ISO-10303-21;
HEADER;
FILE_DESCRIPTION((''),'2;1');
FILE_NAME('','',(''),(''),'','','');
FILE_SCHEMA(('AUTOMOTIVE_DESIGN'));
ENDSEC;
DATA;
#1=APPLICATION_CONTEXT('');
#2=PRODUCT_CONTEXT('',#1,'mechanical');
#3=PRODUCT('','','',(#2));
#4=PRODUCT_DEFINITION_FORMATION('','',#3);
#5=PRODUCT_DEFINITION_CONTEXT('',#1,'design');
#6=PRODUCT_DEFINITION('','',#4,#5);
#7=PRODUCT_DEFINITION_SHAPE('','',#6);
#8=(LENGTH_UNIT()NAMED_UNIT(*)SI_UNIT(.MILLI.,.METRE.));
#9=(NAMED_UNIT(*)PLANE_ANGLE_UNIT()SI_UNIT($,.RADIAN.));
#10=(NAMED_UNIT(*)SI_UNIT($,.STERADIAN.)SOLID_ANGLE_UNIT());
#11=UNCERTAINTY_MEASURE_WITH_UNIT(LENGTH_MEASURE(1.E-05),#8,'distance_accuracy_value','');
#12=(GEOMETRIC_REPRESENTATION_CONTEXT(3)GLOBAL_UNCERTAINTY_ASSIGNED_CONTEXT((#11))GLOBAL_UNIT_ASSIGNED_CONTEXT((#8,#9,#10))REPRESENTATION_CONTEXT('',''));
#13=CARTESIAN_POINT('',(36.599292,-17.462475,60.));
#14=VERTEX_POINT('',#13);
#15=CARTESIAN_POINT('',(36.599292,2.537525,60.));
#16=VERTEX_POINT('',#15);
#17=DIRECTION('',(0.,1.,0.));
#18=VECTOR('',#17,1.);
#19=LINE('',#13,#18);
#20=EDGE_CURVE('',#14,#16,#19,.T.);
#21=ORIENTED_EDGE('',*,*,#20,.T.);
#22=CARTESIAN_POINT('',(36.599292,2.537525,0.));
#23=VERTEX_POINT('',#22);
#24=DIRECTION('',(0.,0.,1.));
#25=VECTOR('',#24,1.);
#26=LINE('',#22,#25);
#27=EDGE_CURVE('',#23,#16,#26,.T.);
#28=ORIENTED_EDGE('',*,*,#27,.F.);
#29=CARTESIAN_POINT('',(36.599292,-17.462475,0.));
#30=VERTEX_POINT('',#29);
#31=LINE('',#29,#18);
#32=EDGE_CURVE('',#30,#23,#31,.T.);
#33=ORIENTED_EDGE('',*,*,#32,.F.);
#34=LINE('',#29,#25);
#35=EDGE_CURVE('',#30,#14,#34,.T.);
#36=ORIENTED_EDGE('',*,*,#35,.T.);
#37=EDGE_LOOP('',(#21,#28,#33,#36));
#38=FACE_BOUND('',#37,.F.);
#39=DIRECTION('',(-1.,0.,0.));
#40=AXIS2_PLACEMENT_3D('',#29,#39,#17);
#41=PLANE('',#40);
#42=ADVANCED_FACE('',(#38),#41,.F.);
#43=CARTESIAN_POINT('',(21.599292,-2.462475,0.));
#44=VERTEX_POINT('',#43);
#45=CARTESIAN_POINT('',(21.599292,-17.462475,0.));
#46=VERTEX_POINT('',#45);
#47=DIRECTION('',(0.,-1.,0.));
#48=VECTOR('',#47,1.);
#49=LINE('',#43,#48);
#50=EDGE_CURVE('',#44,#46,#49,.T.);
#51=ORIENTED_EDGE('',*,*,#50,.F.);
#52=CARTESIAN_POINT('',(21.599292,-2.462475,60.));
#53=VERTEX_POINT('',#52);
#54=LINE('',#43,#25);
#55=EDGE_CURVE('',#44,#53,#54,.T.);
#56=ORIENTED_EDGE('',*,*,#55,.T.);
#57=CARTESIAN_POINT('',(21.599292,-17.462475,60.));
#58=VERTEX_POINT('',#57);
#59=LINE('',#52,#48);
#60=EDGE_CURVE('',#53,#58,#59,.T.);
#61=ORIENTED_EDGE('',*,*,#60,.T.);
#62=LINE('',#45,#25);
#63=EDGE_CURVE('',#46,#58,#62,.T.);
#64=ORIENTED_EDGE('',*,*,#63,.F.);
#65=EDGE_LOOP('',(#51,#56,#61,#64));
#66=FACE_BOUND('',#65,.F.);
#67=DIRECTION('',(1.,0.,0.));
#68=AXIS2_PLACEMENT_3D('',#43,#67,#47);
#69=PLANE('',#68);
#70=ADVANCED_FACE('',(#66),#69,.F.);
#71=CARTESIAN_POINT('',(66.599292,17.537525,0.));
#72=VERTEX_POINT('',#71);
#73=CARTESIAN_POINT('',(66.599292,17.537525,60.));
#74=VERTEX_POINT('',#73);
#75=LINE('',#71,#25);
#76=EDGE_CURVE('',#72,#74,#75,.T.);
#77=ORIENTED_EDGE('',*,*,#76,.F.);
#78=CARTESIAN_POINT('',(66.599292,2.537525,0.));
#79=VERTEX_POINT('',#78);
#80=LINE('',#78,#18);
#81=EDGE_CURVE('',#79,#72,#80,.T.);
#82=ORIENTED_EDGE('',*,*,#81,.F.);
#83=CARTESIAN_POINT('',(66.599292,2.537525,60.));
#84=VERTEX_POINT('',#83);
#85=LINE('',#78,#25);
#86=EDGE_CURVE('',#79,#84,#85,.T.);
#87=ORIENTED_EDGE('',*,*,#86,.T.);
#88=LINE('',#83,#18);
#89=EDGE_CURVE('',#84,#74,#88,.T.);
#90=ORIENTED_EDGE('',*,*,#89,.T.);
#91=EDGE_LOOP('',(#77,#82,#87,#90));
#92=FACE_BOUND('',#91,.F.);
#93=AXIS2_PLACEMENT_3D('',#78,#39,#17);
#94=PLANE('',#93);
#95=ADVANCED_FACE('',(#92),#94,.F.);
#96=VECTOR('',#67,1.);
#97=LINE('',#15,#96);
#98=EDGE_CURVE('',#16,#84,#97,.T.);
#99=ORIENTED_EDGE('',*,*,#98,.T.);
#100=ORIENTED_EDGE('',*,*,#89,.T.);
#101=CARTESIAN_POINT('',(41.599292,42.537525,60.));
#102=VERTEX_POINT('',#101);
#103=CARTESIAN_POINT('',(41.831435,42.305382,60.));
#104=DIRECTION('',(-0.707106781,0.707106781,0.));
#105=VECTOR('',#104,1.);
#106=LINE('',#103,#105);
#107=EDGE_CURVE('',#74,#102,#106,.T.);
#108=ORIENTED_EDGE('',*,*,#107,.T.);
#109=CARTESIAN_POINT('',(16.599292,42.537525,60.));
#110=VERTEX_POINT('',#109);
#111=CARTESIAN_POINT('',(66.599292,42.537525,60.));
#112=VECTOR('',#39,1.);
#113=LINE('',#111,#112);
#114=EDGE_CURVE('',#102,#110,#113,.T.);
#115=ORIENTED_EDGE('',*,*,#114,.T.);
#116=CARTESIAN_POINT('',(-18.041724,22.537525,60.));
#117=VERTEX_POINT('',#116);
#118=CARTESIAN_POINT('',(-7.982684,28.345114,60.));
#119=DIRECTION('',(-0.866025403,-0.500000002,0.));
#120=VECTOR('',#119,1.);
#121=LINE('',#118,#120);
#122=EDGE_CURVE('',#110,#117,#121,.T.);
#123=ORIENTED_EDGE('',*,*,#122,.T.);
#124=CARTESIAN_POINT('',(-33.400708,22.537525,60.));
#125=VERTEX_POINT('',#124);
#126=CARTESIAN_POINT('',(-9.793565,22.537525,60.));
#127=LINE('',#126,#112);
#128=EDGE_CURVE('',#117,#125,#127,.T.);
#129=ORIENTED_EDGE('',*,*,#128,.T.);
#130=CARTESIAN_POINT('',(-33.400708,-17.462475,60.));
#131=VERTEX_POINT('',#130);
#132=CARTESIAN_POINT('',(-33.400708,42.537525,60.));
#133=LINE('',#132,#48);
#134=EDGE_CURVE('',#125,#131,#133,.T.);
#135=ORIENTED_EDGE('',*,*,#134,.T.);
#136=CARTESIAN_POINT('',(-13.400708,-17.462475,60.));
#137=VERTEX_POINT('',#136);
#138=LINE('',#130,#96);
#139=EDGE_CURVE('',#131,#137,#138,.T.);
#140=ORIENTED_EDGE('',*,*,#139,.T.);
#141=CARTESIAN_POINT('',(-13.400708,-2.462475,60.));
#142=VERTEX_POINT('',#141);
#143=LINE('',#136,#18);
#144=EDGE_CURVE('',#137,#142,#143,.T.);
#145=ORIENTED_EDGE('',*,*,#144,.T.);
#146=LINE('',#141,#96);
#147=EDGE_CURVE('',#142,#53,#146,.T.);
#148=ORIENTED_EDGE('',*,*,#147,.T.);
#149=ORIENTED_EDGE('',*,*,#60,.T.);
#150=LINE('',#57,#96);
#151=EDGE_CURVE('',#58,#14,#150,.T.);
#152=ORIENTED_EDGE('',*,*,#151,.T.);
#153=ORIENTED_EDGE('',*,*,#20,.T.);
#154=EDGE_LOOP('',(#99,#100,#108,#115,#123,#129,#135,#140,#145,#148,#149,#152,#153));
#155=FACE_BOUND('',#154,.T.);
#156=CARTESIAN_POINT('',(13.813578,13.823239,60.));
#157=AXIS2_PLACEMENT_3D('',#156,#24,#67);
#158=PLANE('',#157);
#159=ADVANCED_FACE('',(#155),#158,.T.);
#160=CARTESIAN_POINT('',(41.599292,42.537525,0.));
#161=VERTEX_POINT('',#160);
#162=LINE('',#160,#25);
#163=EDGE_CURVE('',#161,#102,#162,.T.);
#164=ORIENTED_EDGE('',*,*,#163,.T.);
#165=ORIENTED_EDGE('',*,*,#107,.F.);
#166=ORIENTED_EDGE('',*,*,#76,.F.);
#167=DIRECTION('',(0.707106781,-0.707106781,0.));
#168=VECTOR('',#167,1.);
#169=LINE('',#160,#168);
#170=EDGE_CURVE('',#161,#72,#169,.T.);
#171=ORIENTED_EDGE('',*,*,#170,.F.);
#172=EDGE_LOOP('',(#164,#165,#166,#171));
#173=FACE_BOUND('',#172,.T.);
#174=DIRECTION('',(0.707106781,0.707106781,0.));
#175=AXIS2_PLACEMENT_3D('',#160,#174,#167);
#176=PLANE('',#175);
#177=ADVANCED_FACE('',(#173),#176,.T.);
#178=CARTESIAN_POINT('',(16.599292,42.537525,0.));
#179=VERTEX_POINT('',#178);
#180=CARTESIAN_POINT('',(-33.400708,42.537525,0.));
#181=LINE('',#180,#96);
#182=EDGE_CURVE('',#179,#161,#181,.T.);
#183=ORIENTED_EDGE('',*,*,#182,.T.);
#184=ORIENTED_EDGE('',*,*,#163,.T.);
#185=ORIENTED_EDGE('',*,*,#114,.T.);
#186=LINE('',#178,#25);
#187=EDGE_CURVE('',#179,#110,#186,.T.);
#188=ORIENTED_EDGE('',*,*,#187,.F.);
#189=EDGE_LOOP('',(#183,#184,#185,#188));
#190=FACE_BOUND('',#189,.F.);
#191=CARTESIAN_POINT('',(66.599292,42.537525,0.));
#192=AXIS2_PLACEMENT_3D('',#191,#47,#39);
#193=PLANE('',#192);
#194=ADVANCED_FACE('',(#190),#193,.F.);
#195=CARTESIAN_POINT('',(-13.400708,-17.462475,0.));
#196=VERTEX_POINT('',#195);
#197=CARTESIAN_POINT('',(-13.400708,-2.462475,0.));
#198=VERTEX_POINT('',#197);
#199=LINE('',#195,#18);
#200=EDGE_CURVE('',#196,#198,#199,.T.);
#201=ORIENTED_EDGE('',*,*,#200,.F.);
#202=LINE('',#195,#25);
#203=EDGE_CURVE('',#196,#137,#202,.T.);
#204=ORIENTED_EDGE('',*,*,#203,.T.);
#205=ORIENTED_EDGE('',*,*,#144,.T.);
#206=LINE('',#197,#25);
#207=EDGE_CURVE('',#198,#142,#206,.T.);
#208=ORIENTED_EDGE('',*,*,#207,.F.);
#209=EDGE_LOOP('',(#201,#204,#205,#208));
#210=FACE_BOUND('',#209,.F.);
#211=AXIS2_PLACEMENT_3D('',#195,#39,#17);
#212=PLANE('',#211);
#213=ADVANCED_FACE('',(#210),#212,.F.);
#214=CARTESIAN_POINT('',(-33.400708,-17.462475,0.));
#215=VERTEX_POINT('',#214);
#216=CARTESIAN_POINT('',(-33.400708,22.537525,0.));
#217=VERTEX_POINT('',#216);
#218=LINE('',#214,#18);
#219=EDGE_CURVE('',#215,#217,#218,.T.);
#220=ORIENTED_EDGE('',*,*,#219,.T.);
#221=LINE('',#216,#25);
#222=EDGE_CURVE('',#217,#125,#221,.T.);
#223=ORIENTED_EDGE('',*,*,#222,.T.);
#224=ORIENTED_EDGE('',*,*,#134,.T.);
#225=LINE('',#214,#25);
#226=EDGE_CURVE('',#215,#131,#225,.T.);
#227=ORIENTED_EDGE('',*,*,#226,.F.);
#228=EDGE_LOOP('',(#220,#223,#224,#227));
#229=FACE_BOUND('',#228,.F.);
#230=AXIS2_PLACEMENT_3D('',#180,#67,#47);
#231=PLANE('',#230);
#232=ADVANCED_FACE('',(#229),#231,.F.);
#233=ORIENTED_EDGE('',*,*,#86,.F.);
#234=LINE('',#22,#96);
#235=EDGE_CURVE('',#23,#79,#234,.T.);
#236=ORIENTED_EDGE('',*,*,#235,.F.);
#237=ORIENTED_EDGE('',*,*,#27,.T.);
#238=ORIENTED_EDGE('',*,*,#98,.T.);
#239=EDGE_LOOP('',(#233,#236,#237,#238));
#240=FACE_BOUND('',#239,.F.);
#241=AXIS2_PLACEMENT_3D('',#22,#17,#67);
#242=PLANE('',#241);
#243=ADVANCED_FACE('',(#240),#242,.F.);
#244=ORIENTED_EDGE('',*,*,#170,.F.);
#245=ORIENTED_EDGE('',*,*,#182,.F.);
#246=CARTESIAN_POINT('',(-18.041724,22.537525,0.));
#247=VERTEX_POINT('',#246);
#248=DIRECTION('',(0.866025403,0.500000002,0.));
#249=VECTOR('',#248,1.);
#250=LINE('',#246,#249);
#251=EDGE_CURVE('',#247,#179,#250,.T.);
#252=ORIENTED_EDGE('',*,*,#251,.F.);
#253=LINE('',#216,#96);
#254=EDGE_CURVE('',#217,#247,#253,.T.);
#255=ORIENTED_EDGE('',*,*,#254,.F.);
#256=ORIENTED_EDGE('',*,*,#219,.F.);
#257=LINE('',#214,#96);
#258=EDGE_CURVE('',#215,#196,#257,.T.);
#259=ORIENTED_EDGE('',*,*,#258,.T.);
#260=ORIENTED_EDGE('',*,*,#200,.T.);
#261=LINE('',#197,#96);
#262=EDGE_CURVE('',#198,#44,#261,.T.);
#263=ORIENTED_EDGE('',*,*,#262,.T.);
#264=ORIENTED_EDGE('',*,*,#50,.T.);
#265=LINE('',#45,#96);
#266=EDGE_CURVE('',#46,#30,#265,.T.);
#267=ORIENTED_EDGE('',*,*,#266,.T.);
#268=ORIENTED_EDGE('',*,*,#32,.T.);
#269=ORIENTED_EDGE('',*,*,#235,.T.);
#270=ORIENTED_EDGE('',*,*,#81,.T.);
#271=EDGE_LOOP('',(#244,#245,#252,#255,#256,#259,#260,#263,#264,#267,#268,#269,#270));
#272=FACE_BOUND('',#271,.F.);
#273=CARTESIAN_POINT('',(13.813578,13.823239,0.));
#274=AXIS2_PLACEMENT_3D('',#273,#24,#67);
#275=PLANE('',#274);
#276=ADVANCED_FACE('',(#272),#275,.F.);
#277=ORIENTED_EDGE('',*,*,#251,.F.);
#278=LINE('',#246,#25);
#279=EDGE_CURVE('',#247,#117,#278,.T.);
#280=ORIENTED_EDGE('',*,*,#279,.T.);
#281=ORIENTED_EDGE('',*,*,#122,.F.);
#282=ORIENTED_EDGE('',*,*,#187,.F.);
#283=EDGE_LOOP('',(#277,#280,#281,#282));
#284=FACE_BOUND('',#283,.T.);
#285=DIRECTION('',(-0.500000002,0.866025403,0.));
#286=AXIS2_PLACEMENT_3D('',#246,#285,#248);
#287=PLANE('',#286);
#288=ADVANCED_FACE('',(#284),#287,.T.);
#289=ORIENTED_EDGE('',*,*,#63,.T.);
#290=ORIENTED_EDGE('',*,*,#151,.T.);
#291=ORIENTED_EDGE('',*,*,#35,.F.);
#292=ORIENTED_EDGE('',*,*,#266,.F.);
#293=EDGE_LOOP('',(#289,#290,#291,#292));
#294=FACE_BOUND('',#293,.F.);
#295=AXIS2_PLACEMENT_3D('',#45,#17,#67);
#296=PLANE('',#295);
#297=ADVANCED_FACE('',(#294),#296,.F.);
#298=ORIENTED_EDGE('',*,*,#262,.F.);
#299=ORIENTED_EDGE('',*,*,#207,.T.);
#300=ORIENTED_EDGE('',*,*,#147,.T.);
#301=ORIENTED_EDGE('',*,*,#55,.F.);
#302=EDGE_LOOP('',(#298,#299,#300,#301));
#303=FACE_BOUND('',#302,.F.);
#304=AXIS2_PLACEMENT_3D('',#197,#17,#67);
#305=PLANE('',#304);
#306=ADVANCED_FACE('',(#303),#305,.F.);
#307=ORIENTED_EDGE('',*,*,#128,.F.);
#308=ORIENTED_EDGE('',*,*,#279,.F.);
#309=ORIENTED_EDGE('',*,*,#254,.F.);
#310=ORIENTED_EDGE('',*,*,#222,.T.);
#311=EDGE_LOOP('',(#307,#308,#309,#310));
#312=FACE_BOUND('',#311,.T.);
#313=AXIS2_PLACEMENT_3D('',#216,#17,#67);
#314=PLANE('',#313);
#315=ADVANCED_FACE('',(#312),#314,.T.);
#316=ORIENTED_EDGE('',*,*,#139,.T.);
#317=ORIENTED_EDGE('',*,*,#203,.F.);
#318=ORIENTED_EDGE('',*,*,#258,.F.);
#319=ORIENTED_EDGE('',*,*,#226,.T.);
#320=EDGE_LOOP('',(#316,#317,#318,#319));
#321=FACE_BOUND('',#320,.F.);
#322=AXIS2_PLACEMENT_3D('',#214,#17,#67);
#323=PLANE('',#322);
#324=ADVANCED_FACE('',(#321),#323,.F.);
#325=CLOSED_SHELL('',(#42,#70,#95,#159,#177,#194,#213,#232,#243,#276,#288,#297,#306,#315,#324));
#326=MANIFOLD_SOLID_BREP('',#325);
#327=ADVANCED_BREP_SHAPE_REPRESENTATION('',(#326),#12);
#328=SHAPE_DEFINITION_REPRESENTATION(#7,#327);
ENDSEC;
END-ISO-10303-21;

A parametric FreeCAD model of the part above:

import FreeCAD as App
import Part
import Sketcher
from FreeCAD import Vector
Q = App.Units.Quantity


def add_polygon(sketch, points):
    """Adds a closed chain of lines whose ends are joined by coincident constraints."""
    first, n = sketch.GeometryCount, len(points)
    for a, b in zip(points, points[1:] + points[:1]):
        sketch.addGeometry(Part.LineSegment(App.Vector(*a, 0), App.Vector(*b, 0)), False)
    for i in range(n):
        sketch.addConstraint(Sketcher.Constraint("Coincident", first + i, 2, first + (i + 1) % n, 1))

doc = App.newDocument("Part")
body = doc.addObject("PartDesign::Body", "Body")

# Sketch on XY plane
sketch1 = body.newObject("Sketcher::SketchObject", "Sketch")
sketch1.AttachmentSupport = (doc.getObject("XY_Plane"), [""])
sketch1.MapMode = "FlatFace"
add_polygon(sketch1, [(67, 43), (-33, 43), (-33, -17), (-13, -17), (-13, -2), (22, -2), (22, -17), (37, -17), (37, 3), (67, 3)])  # lines 0-9
sketch1.addConstraint(Sketcher.Constraint("Horizontal", 0))
sketch1.addConstraint(Sketcher.Constraint("Vertical", 1))
sketch1.addConstraint(Sketcher.Constraint("Horizontal", 2))
sketch1.addConstraint(Sketcher.Constraint("Vertical", 3))
sketch1.addConstraint(Sketcher.Constraint("Horizontal", 4))
sketch1.addConstraint(Sketcher.Constraint("Vertical", 5))
sketch1.addConstraint(Sketcher.Constraint("Horizontal", 6))
sketch1.addConstraint(Sketcher.Constraint("Vertical", 7))
sketch1.addConstraint(Sketcher.Constraint("Horizontal", 8))
sketch1.addConstraint(Sketcher.Constraint("Vertical", 9))
sketch1.addConstraint(Sketcher.Constraint("Horizontal", 2, 2, 5, 2))
sketch1.addConstraint(Sketcher.Constraint("Equal", 6, 3))
sketch1.addConstraint(Sketcher.Constraint("Equal", 2, 7))
sketch1.addConstraint(Sketcher.Constraint("DistanceX", 0, 2, 0, 1, Q("100 mm")))
sketch1.addConstraint(Sketcher.Constraint("DistanceX", 2, 1, 2, 2, Q("20 mm")))
sketch1.addConstraint(Sketcher.Constraint("DistanceX", 4, 1, 4, 2, Q("35 mm")))
sketch1.addConstraint(Sketcher.Constraint("DistanceX", 6, 1, 6, 2, Q("15 mm")))
sketch1.addConstraint(Sketcher.Constraint("DistanceY", 1, 2, 1, 1, Q("60 mm")))
sketch1.addConstraint(Sketcher.Constraint("DistanceX", 0, 2, -1, 1, Q("33.400708 mm")))
sketch1.addConstraint(Sketcher.Constraint("DistanceY", -1, 1, 0, 2, Q("42.537525 mm")))
pad1 = body.newObject("PartDesign::Pad", "Pad")
pad1.Profile = sketch1
pad1.Length = 60

# Sketch on XY plane
sketch2 = body.newObject("Sketcher::SketchObject", "Sketch001")
sketch2.AttachmentSupport = (doc.getObject("XY_Plane"), [""])
sketch2.MapMode = "FlatFace"
add_polygon(sketch2, [(67, 18), (67, 43), (42, 43)])  # lines 0-2
add_polygon(sketch2, [(17, 43), (-33, 43), (-33, 23), (-18, 23)])  # lines 3-6
sketch2.addConstraint(Sketcher.Constraint("Vertical", 0))
sketch2.addConstraint(Sketcher.Constraint("Horizontal", 1))
sketch2.addConstraint(Sketcher.Constraint("Horizontal", 3))
sketch2.addConstraint(Sketcher.Constraint("Vertical", 4))
sketch2.addConstraint(Sketcher.Constraint("Horizontal", 5))
sketch2.addConstraint(Sketcher.Constraint("Horizontal", 1, 2, 3, 2))
sketch2.addConstraint(Sketcher.Constraint("Equal", 1, 0))
sketch2.addConstraint(Sketcher.Constraint("DistanceX", 1, 2, 1, 1, Q("25 mm")))
sketch2.addConstraint(Sketcher.Constraint("DistanceX", 3, 2, 3, 1, Q("50 mm")))
sketch2.addConstraint(Sketcher.Constraint("DistanceY", 4, 2, 4, 1, Q("20 mm")))
sketch2.addConstraint(Sketcher.Constraint("Angle", 6, Q("30 deg")))
sketch2.addConstraint(Sketcher.Constraint("DistanceX", 3, 2, 1, 2, Q("75 mm")))
sketch2.addConstraint(Sketcher.Constraint("DistanceX", -1, 1, 1, 2, Q("41.599292 mm")))
sketch2.addConstraint(Sketcher.Constraint("DistanceY", -1, 1, 0, 2, Q("42.537525 mm")))
pad2 = body.newObject("PartDesign::Pad", "Pad001")
pad2.Profile = sketch2
pad2.Length = 25

# Sketch on XY plane
sketch3 = body.newObject("Sketcher::SketchObject", "Sketch002")
sketch3.AttachmentSupport = (doc.getObject("XY_Plane"), [""])
sketch3.MapMode = "FlatFace"
add_polygon(sketch3, [(67, 18), (67, 43), (42, 43)])  # lines 0-2
add_polygon(sketch3, [(17, 43), (-33, 43), (-33, 23), (-18, 23)])  # lines 3-6
sketch3.addConstraint(Sketcher.Constraint("Vertical", 0))
sketch3.addConstraint(Sketcher.Constraint("Horizontal", 1))
sketch3.addConstraint(Sketcher.Constraint("Horizontal", 3))
sketch3.addConstraint(Sketcher.Constraint("Vertical", 4))
sketch3.addConstraint(Sketcher.Constraint("Horizontal", 5))
sketch3.addConstraint(Sketcher.Constraint("Horizontal", 1, 2, 3, 2))
sketch3.addConstraint(Sketcher.Constraint("Equal", 1, 0))
sketch3.addConstraint(Sketcher.Constraint("DistanceX", 1, 2, 1, 1, Q("25 mm")))
sketch3.addConstraint(Sketcher.Constraint("DistanceX", 3, 2, 3, 1, Q("50 mm")))
sketch3.addConstraint(Sketcher.Constraint("DistanceY", 4, 2, 4, 1, Q("20 mm")))
sketch3.addConstraint(Sketcher.Constraint("Angle", 6, Q("30 deg")))
sketch3.addConstraint(Sketcher.Constraint("DistanceX", 3, 2, 1, 2, Q("75 mm")))
sketch3.addConstraint(Sketcher.Constraint("DistanceX", -1, 1, 1, 2, Q("41.599292 mm")))
sketch3.addConstraint(Sketcher.Constraint("DistanceY", -1, 1, 0, 2, Q("42.537525 mm")))
pocket1 = body.newObject("PartDesign::Pocket", "Pocket")
pocket1.Profile = sketch3
pocket1.Length = 78
pocket1.Reversed = True

doc.recompute()
